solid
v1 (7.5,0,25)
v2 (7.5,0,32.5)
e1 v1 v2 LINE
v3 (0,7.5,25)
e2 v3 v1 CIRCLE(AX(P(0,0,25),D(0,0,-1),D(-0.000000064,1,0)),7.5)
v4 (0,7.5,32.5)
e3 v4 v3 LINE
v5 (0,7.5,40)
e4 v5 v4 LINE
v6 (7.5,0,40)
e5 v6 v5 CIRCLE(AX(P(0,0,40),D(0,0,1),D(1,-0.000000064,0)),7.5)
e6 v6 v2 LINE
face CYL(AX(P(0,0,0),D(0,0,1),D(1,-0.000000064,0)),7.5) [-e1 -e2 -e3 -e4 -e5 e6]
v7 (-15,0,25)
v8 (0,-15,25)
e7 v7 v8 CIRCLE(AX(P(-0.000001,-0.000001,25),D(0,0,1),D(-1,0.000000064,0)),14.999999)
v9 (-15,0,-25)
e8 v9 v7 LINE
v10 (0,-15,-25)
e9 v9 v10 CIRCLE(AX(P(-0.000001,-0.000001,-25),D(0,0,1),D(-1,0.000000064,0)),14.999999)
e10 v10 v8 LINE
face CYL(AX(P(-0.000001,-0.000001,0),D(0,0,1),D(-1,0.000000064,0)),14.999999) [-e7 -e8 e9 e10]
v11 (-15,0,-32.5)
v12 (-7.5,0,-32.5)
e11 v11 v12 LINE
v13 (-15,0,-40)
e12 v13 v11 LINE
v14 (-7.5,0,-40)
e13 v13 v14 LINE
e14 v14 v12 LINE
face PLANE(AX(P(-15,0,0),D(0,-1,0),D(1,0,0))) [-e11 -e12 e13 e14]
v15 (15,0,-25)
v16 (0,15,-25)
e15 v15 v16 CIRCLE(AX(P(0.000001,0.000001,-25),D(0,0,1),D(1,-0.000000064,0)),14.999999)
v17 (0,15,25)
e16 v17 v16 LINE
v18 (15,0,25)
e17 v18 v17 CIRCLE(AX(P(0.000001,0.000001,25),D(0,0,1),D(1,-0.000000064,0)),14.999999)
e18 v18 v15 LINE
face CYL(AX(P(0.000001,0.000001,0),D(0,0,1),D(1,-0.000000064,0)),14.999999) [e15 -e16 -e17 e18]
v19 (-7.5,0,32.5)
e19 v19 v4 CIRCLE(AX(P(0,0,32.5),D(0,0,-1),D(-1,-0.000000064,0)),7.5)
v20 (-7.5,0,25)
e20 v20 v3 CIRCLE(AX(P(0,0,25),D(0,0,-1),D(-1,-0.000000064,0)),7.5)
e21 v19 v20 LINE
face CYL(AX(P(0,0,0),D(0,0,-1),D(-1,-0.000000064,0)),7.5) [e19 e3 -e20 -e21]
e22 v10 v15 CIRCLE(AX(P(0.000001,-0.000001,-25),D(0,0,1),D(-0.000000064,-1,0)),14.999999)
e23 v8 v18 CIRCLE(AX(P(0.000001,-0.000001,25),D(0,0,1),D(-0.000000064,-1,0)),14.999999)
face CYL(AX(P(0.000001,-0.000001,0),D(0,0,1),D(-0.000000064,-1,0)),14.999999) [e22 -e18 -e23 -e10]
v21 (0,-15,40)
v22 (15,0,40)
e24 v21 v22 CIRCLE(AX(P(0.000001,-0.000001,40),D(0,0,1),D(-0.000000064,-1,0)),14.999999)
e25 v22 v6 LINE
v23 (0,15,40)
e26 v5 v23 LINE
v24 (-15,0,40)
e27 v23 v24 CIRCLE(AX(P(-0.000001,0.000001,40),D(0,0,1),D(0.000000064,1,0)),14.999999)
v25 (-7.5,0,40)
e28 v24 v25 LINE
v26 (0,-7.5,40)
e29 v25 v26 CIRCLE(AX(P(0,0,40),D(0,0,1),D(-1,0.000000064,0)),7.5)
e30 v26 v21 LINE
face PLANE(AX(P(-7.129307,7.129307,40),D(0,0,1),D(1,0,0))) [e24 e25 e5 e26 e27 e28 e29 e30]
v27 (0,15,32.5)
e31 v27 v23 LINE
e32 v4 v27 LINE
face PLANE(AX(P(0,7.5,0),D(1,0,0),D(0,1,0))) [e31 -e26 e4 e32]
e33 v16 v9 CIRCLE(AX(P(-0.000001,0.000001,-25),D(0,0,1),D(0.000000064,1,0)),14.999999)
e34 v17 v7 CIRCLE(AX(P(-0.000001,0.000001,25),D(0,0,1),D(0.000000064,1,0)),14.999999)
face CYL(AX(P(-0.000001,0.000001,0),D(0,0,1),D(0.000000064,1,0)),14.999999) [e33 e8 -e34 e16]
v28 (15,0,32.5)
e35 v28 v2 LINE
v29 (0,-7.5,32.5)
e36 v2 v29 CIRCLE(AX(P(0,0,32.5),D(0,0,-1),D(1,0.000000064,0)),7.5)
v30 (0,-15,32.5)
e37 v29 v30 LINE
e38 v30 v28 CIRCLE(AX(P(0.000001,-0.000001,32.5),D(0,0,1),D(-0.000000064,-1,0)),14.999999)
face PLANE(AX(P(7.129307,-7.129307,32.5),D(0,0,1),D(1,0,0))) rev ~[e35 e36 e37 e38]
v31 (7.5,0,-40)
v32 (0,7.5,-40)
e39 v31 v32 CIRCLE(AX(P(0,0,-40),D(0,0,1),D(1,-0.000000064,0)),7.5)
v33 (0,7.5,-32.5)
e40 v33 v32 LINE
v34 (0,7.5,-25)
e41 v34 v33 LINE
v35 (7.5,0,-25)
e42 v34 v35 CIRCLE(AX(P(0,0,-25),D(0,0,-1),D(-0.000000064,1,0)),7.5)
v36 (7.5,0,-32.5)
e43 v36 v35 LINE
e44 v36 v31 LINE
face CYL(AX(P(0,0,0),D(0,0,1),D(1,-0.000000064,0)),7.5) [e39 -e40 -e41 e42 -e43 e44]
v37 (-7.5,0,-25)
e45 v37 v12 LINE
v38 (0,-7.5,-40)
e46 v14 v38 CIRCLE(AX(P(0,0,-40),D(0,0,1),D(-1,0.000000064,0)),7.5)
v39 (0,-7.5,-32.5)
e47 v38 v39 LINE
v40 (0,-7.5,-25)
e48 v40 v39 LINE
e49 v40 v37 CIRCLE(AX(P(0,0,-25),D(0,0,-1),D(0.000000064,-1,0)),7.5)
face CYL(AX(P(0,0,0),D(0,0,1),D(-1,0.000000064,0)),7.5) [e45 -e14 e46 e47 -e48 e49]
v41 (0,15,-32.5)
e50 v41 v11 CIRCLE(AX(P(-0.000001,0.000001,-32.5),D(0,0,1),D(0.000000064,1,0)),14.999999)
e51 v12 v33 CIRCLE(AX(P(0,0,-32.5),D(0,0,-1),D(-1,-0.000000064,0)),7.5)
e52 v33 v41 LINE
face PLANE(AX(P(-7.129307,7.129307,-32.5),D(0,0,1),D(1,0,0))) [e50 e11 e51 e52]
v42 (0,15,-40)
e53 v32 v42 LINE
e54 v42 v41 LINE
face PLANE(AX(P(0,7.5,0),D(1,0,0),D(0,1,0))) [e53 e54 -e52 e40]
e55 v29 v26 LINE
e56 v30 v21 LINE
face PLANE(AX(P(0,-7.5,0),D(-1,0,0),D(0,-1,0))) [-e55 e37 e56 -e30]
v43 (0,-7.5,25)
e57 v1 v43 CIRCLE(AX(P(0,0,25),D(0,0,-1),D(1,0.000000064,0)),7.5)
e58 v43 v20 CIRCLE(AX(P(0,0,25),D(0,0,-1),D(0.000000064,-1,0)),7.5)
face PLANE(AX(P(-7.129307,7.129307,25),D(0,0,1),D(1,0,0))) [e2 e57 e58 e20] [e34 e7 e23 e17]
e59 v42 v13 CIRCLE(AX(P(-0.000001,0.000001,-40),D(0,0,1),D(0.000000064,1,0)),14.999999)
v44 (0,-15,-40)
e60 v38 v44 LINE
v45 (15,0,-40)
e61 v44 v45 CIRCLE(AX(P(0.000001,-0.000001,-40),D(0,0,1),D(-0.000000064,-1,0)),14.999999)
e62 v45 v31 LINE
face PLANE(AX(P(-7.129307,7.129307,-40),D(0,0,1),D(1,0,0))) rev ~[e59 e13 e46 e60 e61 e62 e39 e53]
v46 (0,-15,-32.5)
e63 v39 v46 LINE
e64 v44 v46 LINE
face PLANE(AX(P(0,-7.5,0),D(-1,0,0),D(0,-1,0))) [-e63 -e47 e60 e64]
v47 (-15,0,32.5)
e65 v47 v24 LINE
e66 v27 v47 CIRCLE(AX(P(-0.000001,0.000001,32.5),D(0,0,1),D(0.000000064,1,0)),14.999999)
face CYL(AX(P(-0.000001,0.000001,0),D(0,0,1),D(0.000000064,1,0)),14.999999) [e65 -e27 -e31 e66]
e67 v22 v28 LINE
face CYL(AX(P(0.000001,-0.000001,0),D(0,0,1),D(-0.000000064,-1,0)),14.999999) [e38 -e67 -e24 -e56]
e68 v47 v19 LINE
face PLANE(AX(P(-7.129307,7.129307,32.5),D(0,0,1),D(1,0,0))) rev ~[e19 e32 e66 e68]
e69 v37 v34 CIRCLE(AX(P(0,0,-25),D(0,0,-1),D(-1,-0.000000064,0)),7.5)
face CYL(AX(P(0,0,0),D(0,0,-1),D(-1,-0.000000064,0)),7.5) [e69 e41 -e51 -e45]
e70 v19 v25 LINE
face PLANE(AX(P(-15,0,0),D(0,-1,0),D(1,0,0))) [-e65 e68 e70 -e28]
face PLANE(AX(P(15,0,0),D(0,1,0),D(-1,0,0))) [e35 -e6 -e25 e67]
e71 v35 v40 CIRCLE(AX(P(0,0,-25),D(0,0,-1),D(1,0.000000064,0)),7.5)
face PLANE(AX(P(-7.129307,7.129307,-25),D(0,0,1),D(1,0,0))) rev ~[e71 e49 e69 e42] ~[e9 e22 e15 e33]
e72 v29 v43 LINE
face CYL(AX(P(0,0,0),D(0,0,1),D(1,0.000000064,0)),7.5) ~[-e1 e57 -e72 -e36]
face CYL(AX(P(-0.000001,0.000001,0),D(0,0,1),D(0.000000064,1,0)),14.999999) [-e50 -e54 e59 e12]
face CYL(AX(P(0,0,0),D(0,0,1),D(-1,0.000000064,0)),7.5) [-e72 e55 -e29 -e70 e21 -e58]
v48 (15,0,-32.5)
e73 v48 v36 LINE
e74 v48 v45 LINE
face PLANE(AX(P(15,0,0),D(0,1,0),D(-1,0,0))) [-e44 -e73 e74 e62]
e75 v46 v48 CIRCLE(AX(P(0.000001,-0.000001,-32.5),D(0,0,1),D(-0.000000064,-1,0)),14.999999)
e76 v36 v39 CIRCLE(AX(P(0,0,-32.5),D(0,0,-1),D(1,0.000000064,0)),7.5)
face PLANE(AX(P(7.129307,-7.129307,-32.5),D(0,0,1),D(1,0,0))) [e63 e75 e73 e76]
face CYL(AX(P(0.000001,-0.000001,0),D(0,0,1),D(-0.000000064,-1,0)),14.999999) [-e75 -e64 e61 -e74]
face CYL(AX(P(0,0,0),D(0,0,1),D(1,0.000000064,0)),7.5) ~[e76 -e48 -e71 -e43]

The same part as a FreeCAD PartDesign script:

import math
import FreeCAD as App
import Part
import Sketcher

doc = App.newDocument("Part")
params = doc.addObject("Spreadsheet::Sheet", "Params")
for row, (alias, value) in enumerate([
    ("sketch1_radius", "14.999999 mm"),
    ("sketch1_radius2", "7.5 mm"),
    ("pad1_length", "80 mm"),
    ("sketch2_radius", "14.999999 mm"),
    ("sketch2_radius2", "7.5 mm"),
    ("pocket1_length", "65 mm"),
    ("sketch3_radius", "14.999999 mm"),
    ("sketch3_radius2", "7.5 mm"),
    ("pad2_length", "50 mm"),
], start=1):
    params.set(f"A{row}", alias)
    params.set(f"B{row}", "=" + value)
    params.setAlias(f"B{row}", alias)

body = doc.addObject("PartDesign::Body", "Body")

# Sketch on XY plane
sketch1 = body.newObject("Sketcher::SketchObject", "Sketch")
sketch1.AttachmentSupport = (doc.getObject("XY_Plane"), [""])
sketch1.MapMode = "FlatFace"
sketch1.addGeometry([
    Part.LineSegment(App.Vector(0, 8, 0), App.Vector(0, 15, 0)),  # 0
    Part.ArcOfCircle(Part.Circle(App.Vector(0, 0, 0), App.Vector(0, 0, 1), 15), math.radians(90), math.radians(180)),  # 1
    Part.LineSegment(App.Vector(-15, 0, 0), App.Vector(-8, 0, 0)),  # 2
    Part.ArcOfCircle(Part.Circle(App.Vector(0, 0, 0), App.Vector(0, 0, 1), 7), math.radians(180), math.radians(270)),  # 3
    Part.LineSegment(App.Vector(0, -8, 0), App.Vector(0, -15, 0)),  # 4
    Part.ArcOfCircle(Part.Circle(App.Vector(0, 0, 0), App.Vector(0, 0, 1), 15), math.radians(-90), math.radians(0)),  # 5
    Part.LineSegment(App.Vector(15, 0, 0), App.Vector(8, 0, 0)),  # 6
    Part.ArcOfCircle(Part.Circle(App.Vector(0, 0, 0), App.Vector(0, 0, 1), 7), math.radians(0), math.radians(90)),  # 7
], False)
sketch1.addConstraint([
    Sketcher.Constraint("Coincident", 0, 2, 1, 1),
    Sketcher.Constraint("Coincident", 1, 2, 2, 1),
    Sketcher.Constraint("Coincident", 2, 2, 3, 1),
    Sketcher.Constraint("Coincident", 3, 2, 4, 1),
    Sketcher.Constraint("Coincident", 4, 2, 5, 1),
    Sketcher.Constraint("Coincident", 5, 2, 6, 1),
    Sketcher.Constraint("Coincident", 6, 2, 7, 1),
    Sketcher.Constraint("Coincident", 7, 2, 0, 1),
    Sketcher.Constraint("Vertical", 0),
    Sketcher.Constraint("Horizontal", 2),
    Sketcher.Constraint("Vertical", 4),
    Sketcher.Constraint("Horizontal", 6),
    Sketcher.Constraint("Coincident", 1, 3, -1, 1),
    Sketcher.Constraint("Coincident", 3, 3, -1, 1),
    Sketcher.Constraint("Coincident", 5, 3, -1, 1),
    Sketcher.Constraint("Coincident", 7, 3, -1, 1),
    Sketcher.Constraint("Equal", 1, 5),
    Sketcher.Constraint("Equal", 3, 7),
    Sketcher.Constraint("PointOnObject", 0, 2, -2),
    Sketcher.Constraint("PointOnObject", 1, 2, -1),
    Sketcher.Constraint("PointOnObject", 3, 2, -2),
    Sketcher.Constraint("PointOnObject", 5, 2, -1),
    Sketcher.Constraint("Radius", 1, 14.999999),
    Sketcher.Constraint("Radius", 3, 7.5),
])
sketch1.setExpression("Constraints[22]", "Params.sketch1_radius")
sketch1.setExpression("Constraints[23]", "Params.sketch1_radius2")
pad1 = body.newObject("PartDesign::Pad", "Pad")
pad1.Profile = sketch1
pad1.setExpression("Length", "Params.pad1_length")
pad1.Midplane = True

# Sketch on XY plane
sketch2 = body.newObject("Sketcher::SketchObject", "Sketch001")
sketch2.AttachmentSupport = (doc.getObject("XY_Plane"), [""])
sketch2.MapMode = "FlatFace"
sketch2.addGeometry([
    Part.LineSegment(App.Vector(0, 8, 0), App.Vector(0, 15, 0)),  # 0
    Part.ArcOfCircle(Part.Circle(App.Vector(0, 0, 0), App.Vector(0, 0, 1), 15), math.radians(90), math.radians(180)),  # 1
    Part.LineSegment(App.Vector(-15, 0, 0), App.Vector(-8, 0, 0)),  # 2
    Part.ArcOfCircle(Part.Circle(App.Vector(0, 0, 0), App.Vector(0, 0, 1), 7), math.radians(90), math.radians(180)),  # 3
    Part.ArcOfCircle(Part.Circle(App.Vector(0, 0, 0), App.Vector(0, 0, 1), 15), math.radians(-90), math.radians(0)),  # 4
    Part.LineSegment(App.Vector(15, 0, 0), App.Vector(8, 0, 0)),  # 5
    Part.ArcOfCircle(Part.Circle(App.Vector(0, 0, 0), App.Vector(0, 0, 1), 7), math.radians(-90), math.radians(0)),  # 6
    Part.LineSegment(App.Vector(0, -8, 0), App.Vector(0, -15, 0)),  # 7
], False)
sketch2.addConstraint([
    Sketcher.Constraint("Coincident", 0, 2, 1, 1),
    Sketcher.Constraint("Coincident", 1, 2, 2, 1),
    Sketcher.Constraint("Coincident", 2, 2, 3, 2),
    Sketcher.Constraint("Coincident", 3, 1, 0, 1),
    Sketcher.Constraint("Coincident", 4, 2, 5, 1),
    Sketcher.Constraint("Coincident", 5, 2, 6, 2),
    Sketcher.Constraint("Coincident", 6, 1, 7, 1),
    Sketcher.Constraint("Coincident", 7, 2, 4, 1),
    Sketcher.Constraint("Vertical", 0),
    Sketcher.Constraint("Horizontal", 2),
    Sketcher.Constraint("Horizontal", 5),
    Sketcher.Constraint("Vertical", 7),
    Sketcher.Constraint("Coincident", 1, 3, -1, 1),
    Sketcher.Constraint("Coincident", 3, 3, -1, 1),
    Sketcher.Constraint("Coincident", 4, 3, -1, 1),
    Sketcher.Constraint("Coincident", 6, 3, -1, 1),
    Sketcher.Constraint("Equal", 1, 4),
    Sketcher.Constraint("Equal", 3, 6),
    Sketcher.Constraint("PointOnObject", 0, 2, -2),
    Sketcher.Constraint("PointOnObject", 1, 2, -1),
    Sketcher.Constraint("PointOnObject", 4, 2, -1),
    Sketcher.Constraint("PointOnObject", 6, 1, -2),
    Sketcher.Constraint("Radius", 1, 14.999999),
    Sketcher.Constraint("Radius", 3, 7.5),
])
sketch2.setExpression("Constraints[22]", "Params.sketch2_radius")
sketch2.setExpression("Constraints[23]", "Params.sketch2_radius2")
pocket1 = body.newObject("PartDesign::Pocket", "Pocket")
pocket1.Profile = sketch2
pocket1.setExpression("Length", "Params.pocket1_length")
pocket1.Midplane = True

# Sketch on XY plane
sketch3 = body.newObject("Sketcher::SketchObject", "Sketch002")
sketch3.AttachmentSupport = (doc.getObject("XY_Plane"), [""])
sketch3.MapMode = "FlatFace"
sketch3.addGeometry([
    Part.ArcOfCircle(Part.Circle(App.Vector(0, 0, 0), App.Vector(0, 0, 1), 15), math.radians(90), math.radians(180)),  # 0
    Part.ArcOfCircle(Part.Circle(App.Vector(0, 0, 0), App.Vector(0, 0, 1), 15), math.radians(180), math.radians(270)),  # 1
    Part.ArcOfCircle(Part.Circle(App.Vector(0, 0, 0), App.Vector(0, 0, 1), 15), math.radians(-90), math.radians(0)),  # 2
    Part.ArcOfCircle(Part.Circle(App.Vector(0, 0, 0), App.Vector(0, 0, 1), 15), math.radians(0), math.radians(90)),  # 3
    Part.ArcOfCircle(Part.Circle(App.Vector(0, 0, 0), App.Vector(0, 0, 1), 7), math.radians(180), math.radians(270)),  # 4
    Part.ArcOfCircle(Part.Circle(App.Vector(0, 0, 0), App.Vector(0, 0, 1), 7), math.radians(90), math.radians(180)),  # 5
    Part.ArcOfCircle(Part.Circle(App.Vector(0, 0, 0), App.Vector(0, 0, 1), 7), math.radians(0), math.radians(90)),  # 6
    Part.ArcOfCircle(Part.Circle(App.Vector(0, 0, 0), App.Vector(0, 0, 1), 7), math.radians(-90), math.radians(0)),  # 7
], False)
sketch3.addConstraint([
    Sketcher.Constraint("Tangent", 0, 2, 1, 1),
    Sketcher.Constraint("Tangent", 1, 2, 2, 1),
    Sketcher.Constraint("Tangent", 2, 2, 3, 1),
    Sketcher.Constraint("Tangent", 3, 2, 0, 1),
    Sketcher.Constraint("Tangent", 4, 1, 5, 2),
    Sketcher.Constraint("Tangent", 5, 1, 6, 2),
    Sketcher.Constraint("Tangent", 6, 1, 7, 2),
    Sketcher.Constraint("Tangent", 7, 1, 4, 2),
    Sketcher.Constraint("Coincident", 0, 3, -1, 1),
    Sketcher.Constraint("Coincident", 4, 3, -1, 1),
    Sketcher.Constraint("Equal", 0, 1),
    Sketcher.Constraint("Equal", 4, 5),
    Sketcher.Constraint("PointOnObject", 0, 2, -1),
    Sketcher.Constraint("PointOnObject", 1, 2, -2),
    Sketcher.Constraint("PointOnObject", 2, 2, -1),
    Sketcher.Constraint("PointOnObject", 3, 2, -2),
    Sketcher.Constraint("PointOnObject", 4, 1, -1),
    Sketcher.Constraint("PointOnObject", 5, 1, -2),
    Sketcher.Constraint("PointOnObject", 6, 1, -1),
    Sketcher.Constraint("PointOnObject", 7, 1, -2),
    Sketcher.Constraint("Radius", 0, 14.999999),
    Sketcher.Constraint("Radius", 4, 7.5),
])
sketch3.setExpression("Constraints[20]", "Params.sketch3_radius")
sketch3.setExpression("Constraints[21]", "Params.sketch3_radius2")
pad2 = body.newObject("PartDesign::Pad", "Pad001")
pad2.Profile = sketch3
pad2.setExpression("Length", "Params.pad2_length")
pad2.Midplane = True

doc.recompute()
